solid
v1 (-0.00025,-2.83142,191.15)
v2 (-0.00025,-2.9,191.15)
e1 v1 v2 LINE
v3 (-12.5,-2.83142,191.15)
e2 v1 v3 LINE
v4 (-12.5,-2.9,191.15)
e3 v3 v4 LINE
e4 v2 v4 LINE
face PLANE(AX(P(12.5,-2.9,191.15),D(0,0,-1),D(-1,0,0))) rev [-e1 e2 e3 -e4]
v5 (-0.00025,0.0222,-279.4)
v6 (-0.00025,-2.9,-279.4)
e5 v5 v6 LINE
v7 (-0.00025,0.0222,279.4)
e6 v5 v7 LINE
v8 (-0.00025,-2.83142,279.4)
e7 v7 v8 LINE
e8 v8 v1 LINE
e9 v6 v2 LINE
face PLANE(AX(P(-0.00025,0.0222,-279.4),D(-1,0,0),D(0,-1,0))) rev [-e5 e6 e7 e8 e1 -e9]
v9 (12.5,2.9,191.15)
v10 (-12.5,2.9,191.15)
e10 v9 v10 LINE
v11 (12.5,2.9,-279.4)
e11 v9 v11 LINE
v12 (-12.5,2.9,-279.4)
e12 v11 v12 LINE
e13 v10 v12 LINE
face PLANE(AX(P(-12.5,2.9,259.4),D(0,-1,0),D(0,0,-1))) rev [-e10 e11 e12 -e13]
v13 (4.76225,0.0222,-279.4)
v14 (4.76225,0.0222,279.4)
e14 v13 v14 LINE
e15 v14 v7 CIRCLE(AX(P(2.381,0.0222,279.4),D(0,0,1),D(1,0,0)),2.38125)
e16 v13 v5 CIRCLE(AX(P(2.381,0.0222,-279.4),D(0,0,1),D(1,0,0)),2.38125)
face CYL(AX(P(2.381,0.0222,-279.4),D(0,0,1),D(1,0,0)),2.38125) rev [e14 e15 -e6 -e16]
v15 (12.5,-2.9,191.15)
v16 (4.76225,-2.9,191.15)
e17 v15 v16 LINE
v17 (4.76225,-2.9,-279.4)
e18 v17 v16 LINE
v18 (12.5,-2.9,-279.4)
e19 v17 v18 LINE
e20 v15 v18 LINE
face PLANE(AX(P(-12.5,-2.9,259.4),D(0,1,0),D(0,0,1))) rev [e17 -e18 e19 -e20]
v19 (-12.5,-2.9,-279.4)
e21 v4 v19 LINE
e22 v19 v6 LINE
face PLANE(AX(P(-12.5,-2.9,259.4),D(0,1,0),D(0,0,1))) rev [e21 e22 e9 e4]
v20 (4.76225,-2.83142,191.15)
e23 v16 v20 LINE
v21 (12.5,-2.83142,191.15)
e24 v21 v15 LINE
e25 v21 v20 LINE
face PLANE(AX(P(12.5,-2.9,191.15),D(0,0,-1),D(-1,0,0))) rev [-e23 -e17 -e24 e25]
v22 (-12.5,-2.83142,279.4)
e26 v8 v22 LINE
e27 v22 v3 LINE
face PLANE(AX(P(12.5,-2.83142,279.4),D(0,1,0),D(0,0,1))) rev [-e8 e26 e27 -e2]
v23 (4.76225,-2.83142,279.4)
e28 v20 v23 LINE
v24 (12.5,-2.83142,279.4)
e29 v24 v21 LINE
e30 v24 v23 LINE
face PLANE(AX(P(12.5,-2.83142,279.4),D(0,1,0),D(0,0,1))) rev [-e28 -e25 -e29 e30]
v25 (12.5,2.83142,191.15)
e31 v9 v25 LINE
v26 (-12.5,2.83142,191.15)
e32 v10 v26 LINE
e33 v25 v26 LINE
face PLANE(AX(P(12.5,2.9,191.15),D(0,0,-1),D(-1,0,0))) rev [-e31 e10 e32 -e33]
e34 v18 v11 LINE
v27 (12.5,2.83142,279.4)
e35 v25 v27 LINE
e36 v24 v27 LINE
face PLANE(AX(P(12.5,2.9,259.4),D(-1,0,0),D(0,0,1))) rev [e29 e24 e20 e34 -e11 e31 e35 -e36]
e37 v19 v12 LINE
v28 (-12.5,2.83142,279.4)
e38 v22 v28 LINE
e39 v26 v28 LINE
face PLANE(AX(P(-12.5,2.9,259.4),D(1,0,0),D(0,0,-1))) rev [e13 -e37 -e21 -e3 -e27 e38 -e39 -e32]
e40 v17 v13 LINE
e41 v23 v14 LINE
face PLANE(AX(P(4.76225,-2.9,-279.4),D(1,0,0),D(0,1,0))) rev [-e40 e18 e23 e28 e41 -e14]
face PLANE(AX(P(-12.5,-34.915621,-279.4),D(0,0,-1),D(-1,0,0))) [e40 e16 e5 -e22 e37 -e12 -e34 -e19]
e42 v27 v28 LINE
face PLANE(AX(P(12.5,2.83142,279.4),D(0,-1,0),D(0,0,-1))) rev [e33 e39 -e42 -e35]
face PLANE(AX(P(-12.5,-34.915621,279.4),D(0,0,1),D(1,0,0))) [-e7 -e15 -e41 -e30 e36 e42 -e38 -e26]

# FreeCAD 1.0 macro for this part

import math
import FreeCAD as App
import Part
import Sketcher

V = App.Vector


def add_polygon(sketch, points):
    """Adds a closed chain of lines whose ends are joined by coincident constraints."""
    first, n = sketch.GeometryCount, len(points)
    for a, b in zip(points, points[1:] + points[:1]):
        sketch.addGeometry(Part.LineSegment(App.Vector(*a, 0), App.Vector(*b, 0)), False)
    for i in range(n):
        sketch.addConstraint(Sketcher.Constraint("Coincident", first + i, 2, first + (i + 1) % n, 1))

doc = App.newDocument("Part")
params = doc.addObject("Spreadsheet::Sheet", "Params")
for row, (alias, value) in enumerate([
    ("sketch1_width", "25 mm"),
    ("sketch1_height", "5.8 mm"),
    ("pad1_length", "518.8 mm"),
    ("sketch2_width", "25 mm"),
    ("sketch2_height", "20 mm"),
    ("pad2_length", "5.8 mm"),
    ("sketch4_height", "88.25 mm"),
], start=1):
    params.set(f"A{row}", alias)
    params.set(f"B{row}", "=" + value)
    params.setAlias(f"B{row}", alias)

body = doc.addObject("PartDesign::Body", "Body")

# Sketch on XY plane
sketch1 = body.newObject("Sketcher::SketchObject", "Sketch")
sketch1.AttachmentSupport = (doc.getObject("XY_Plane"), [""])
sketch1.MapMode = "FlatFace"
add_polygon(sketch1, [(-12, 3), (-12, -3), (12, -3), (12, 3)])  # lines 0-3
sketch1.addConstraint([
    Sketcher.Constraint("Vertical", 0),
    Sketcher.Constraint("Horizontal", 1),
    Sketcher.Constraint("Vertical", 2),
    Sketcher.Constraint("Horizontal", 3),
    Sketcher.Constraint("Symmetric", 0, 2, 2, 2, -1, 1),
    Sketcher.Constraint("DistanceX", 1, 1, 1, 2, 25.0),
    Sketcher.Constraint("DistanceY", 0, 2, 0, 1, 5.8),
])
sketch1.setExpression("Constraints[9]", "Params.sketch1_width")
sketch1.setExpression("Constraints[10]", "Params.sketch1_height")
pad1 = body.newObject("PartDesign::Pad", "Pad")
pad1.Profile = sketch1
pad1.setExpression("Length", "Params.pad1_length")
pad1.Midplane = True

# Sketch on XZ plane
sketch2 = body.newObject("Sketcher::SketchObject", "Sketch001")
sketch2.AttachmentSupport = (doc.getObject("XZ_Plane"), [""])
sketch2.MapMode = "FlatFace"
sketch2.AttachmentOffset = App.Placement(V(0, 0, -2.9), App.Rotation())
add_polygon(sketch2, [(-12, -279), (-12, -259), (12, -259), (12, -279)])  # lines 0-3
add_polygon(sketch2, [(-12, 259), (-12, 279), (12, 279), (12, 259)])  # lines 4-7
sketch2.addConstraint([
    Sketcher.Constraint("Vertical", 0),
    Sketcher.Constraint("Horizontal", 1),
    Sketcher.Constraint("Vertical", 2),
    Sketcher.Constraint("Horizontal", 3),
    Sketcher.Constraint("Vertical", 4),
    Sketcher.Constraint("Horizontal", 5),
    Sketcher.Constraint("Vertical", 6),
    Sketcher.Constraint("Horizontal", 7),
    Sketcher.Constraint("Symmetric", 2, 2, 4, 2, -1, 1),
    Sketcher.Constraint("Symmetric", 0, 2, 6, 2, -1, 1),
    Sketcher.Constraint("Vertical", 3, 2, 4, 2),
    Sketcher.Constraint("DistanceX", 1, 1, 1, 2, 25.0),
    Sketcher.Constraint("DistanceY", 0, 1, 0, 2, 20.0),
    Sketcher.Constraint("DistanceY", 0, 2, -1, 1, 259.4),
])
sketch2.setExpression("Constraints[19]", "Params.sketch2_width")
sketch2.setExpression("Constraints[20]", "Params.sketch2_height")
pad2 = body.newObject("PartDesign::Pad", "Pad001")
pad2.Profile = sketch2
pad2.setExpression("Length", "Params.pad2_length")

# Sketch on XY plane
sketch3 = body.newObject("Sketcher::SketchObject", "Sketch002")
sketch3.AttachmentSupport = (doc.getObject("XY_Plane"), [""])
sketch3.MapMode = "FlatFace"
sketch3.AttachmentOffset = App.Placement(V(0, 0, 279.4), App.Rotation())
sketch3.addGeometry([
    Part.LineSegment(V(0, 0, 0), V(0, -2.9, 0)),
    Part.LineSegment(V(0, -2.9, 0), V(4.8, -2.9, 0)),
    Part.LineSegment(V(4.8, -2.9, 0), V(4.8, 0, 0)),
    Part.ArcOfCircle(Part.Circle(V(2.4, 0, 0), V(0, 0, 1), 2.4), math.radians(0), math.radians(180)),
], False)
sketch3.addConstraint([
    Sketcher.Constraint("Coincident", 0, 2, 1, 1),
    Sketcher.Constraint("Coincident", 1, 2, 2, 1),
    Sketcher.Constraint("Tangent", 2, 2, 3, 1),
    Sketcher.Constraint("Tangent", 3, 2, 0, 1),
    Sketcher.Constraint("Vertical", 0),
    Sketcher.Constraint("Horizontal", 1),
    Sketcher.Constraint("Vertical", 2),
    Sketcher.Constraint("DistanceY", 0, 2, -1, 1, 2.9),
    Sketcher.Constraint("Radius", 3, 2.38125),
    Sketcher.Constraint("DistanceY", 0, 2, 0, 1, 2.9222),
    Sketcher.Constraint("DistanceX", -1, 1, 3, 3, 2.381),
])
pocket1 = body.newObject("PartDesign::Pocket", "Pocket")
pocket1.Profile = sketch3
pocket1.Type = "ThroughAll"

# Sketch on YZ plane
sketch4 = body.newObject("Sketcher::SketchObject", "Sketch003")
sketch4.AttachmentSupport = (doc.getObject("YZ_Plane"), [""])
sketch4.MapMode = "FlatFace"
sketch4.AttachmentOffset = App.Placement(V(0, 0, -12.5), App.Rotation())
add_polygon(sketch4, [(2.9, 191.15), (2.83, 191.15), (2.83, 279.4), (2.9, 279.4)])  # lines 0-3
add_polygon(sketch4, [(-2.83, 191.15), (-2.9, 191.15), (-2.9, 279.4), (-2.83, 279.4)])  # lines 4-7
sketch4.addConstraint([
    Sketcher.Constraint("Horizontal", 0),
    Sketcher.Constraint("Vertical", 1),
    Sketcher.Constraint("Horizontal", 2),
    Sketcher.Constraint("Vertical", 3),
    Sketcher.Constraint("Horizontal", 4),
    Sketcher.Constraint("Vertical", 5),
    Sketcher.Constraint("Horizontal", 6),
    Sketcher.Constraint("Vertical", 7),
    Sketcher.Constraint("Symmetric", 3, 2, 4, 2, -2),
    Sketcher.Constraint("Symmetric", 1, 2, 6, 2, -2),
    Sketcher.Constraint("DistanceY", 1, 1, 1, 2, 88.25),
    Sketcher.Constraint("DistanceY", -1, 1, 1, 2, 279.4),
    Sketcher.Constraint("DistanceX", -1, 1, 2, 2, 2.9),
    Sketcher.Constraint("DistanceX", 0, 2, 0, 1, 0.06858),
])
sketch4.setExpression("Constraints[18]", "Params.sketch4_height")
pocket2 = body.newObject("PartDesign::Pocket", "Pocket001")
pocket2.Profile = sketch4
pocket2.Type = "ThroughAll"
pocket2.Reversed = True

doc.recompute()
